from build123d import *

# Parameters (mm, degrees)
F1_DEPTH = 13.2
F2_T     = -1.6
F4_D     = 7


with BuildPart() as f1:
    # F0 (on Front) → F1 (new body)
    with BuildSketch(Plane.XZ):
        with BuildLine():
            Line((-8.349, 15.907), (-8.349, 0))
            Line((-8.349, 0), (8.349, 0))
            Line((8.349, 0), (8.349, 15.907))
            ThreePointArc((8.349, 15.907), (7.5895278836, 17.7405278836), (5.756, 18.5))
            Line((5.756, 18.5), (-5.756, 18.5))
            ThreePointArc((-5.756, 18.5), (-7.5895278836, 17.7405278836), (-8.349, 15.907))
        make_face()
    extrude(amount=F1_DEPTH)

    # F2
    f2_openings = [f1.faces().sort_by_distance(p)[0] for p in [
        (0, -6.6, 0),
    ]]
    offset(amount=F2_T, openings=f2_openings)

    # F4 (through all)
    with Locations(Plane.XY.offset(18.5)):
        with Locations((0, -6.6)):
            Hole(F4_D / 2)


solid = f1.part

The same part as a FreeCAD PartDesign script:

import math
import FreeCAD as App
import Part
import Sketcher
from FreeCAD import Vector


def faces_at(feature, points):
    """Names of the faces that lie closest to the given points."""
    faces = feature.Shape.Faces
    near = lambda p: min(range(len(faces)), key=lambda i: faces[i].distToShape(Part.Vertex(*p))[0])
    return sorted({f"Face{near(p) + 1}" for p in points})

doc = App.newDocument("Part")
body = doc.addObject("PartDesign::Body", "Body")

# Sketch on XZ plane
sketch1 = doc.addObject("Sketcher::SketchObject", "Sketch")
body.addObject(sketch1)
sketch1.AttachmentSupport = (doc.XZ_Plane, [""])
sketch1.MapMode = "FlatFace"
sketch1.addGeometry(Part.LineSegment(Vector(-8.349, 15.907, 0), Vector(-8.349, 0, 0)), False)
sketch1.addGeometry(Part.LineSegment(Vector(-8.349, 0, 0), Vector(8.349, 0, 0)), False)
sketch1.addGeometry(Part.LineSegment(Vector(8.349, 0, 0), Vector(8.349, 15.907, 0)), False)
sketch1.addGeometry(Part.ArcOfCircle(Part.Circle(Vector(5.756, 15.907, 0), Vector(0, 0, 1), 2.593), math.radians(0), math.radians(90)), False)
sketch1.addGeometry(Part.LineSegment(Vector(5.756, 18.5, 0), Vector(-5.756, 18.5, 0)), False)
sketch1.addGeometry(Part.ArcOfCircle(Part.Circle(Vector(-5.756, 15.907, 0), Vector(0, 0, 1), 2.593), math.radians(90), math.radians(180)), False)
sketch1.addConstraint(Sketcher.Constraint("Coincident", 0, 2, 1, 1))
sketch1.addConstraint(Sketcher.Constraint("Coincident", 1, 2, 2, 1))
sketch1.addConstraint(Sketcher.Constraint("Tangent", 2, 2, 3, 1))
sketch1.addConstraint(Sketcher.Constraint("Tangent", 3, 2, 4, 1))
sketch1.addConstraint(Sketcher.Constraint("Tangent", 4, 2, 5, 1))
sketch1.addConstraint(Sketcher.Constraint("Tangent", 5, 2, 0, 1))
sketch1.addConstraint(Sketcher.Constraint("Vertical", 0))
sketch1.addConstraint(Sketcher.Constraint("Horizontal", 1))
sketch1.addConstraint(Sketcher.Constraint("Vertical", 2))
sketch1.addConstraint(Sketcher.Constraint("Horizontal", 4))
sketch1.addConstraint(Sketcher.Constraint("Equal", 3, 5))
sketch1.addConstraint(Sketcher.Constraint("Symmetric", 0, 2, 1, 2, -1, 1))
sketch1.addConstraint(Sketcher.Constraint("Radius", 3, 2.593))
sketch1.addConstraint(Sketcher.Constraint("DistanceY", -1, 1, 3, 2, 18.5))
sketch1.addConstraint(Sketcher.Constraint("DistanceX", 1, 1, 1, 2, 16.698))
pad1 = doc.addObject("PartDesign::Pad", "Pad")
body.addObject(pad1)
pad1.Profile = sketch1
pad1.Length = 13.2
doc.recompute()

thickness = doc.addObject("PartDesign::Thickness", "Thickness")
body.addObject(thickness)
thickness.Base = (pad1, faces_at(pad1, [(0, -6.6, 0)]))
thickness.Value = 1.6
thickness.Reversed = True
thickness.Join = "Arc"

# Sketch on XY plane
sketch2 = doc.addObject("Sketcher::SketchObject", "Sketch001")
body.addObject(sketch2)
sketch2.AttachmentSupport = (doc.XY_Plane, [""])
sketch2.MapMode = "FlatFace"
sketch2.AttachmentOffset = App.Placement(Vector(0, 0, 18.5), App.Rotation())
sketch2.addGeometry(Part.Circle(Vector(0, -6.6, 0), Vector(0, 0, 1), 3.5), False)
sketch2.addConstraint(Sketcher.Constraint("PointOnObject", 0, 3, -2))
sketch2.addConstraint(Sketcher.Constraint("Diameter", 0, 7.0))
sketch2.addConstraint(Sketcher.Constraint("DistanceY", 0, 3, -1, 1, 6.6))
doc.recompute()
hole = doc.addObject("PartDesign::Hole", "Hole")
body.addObject(hole)
hole.Profile = sketch2
hole.ThreadType = "None"
hole.Diameter = 7
hole.DepthType = "ThroughAll"

doc.recompute()
